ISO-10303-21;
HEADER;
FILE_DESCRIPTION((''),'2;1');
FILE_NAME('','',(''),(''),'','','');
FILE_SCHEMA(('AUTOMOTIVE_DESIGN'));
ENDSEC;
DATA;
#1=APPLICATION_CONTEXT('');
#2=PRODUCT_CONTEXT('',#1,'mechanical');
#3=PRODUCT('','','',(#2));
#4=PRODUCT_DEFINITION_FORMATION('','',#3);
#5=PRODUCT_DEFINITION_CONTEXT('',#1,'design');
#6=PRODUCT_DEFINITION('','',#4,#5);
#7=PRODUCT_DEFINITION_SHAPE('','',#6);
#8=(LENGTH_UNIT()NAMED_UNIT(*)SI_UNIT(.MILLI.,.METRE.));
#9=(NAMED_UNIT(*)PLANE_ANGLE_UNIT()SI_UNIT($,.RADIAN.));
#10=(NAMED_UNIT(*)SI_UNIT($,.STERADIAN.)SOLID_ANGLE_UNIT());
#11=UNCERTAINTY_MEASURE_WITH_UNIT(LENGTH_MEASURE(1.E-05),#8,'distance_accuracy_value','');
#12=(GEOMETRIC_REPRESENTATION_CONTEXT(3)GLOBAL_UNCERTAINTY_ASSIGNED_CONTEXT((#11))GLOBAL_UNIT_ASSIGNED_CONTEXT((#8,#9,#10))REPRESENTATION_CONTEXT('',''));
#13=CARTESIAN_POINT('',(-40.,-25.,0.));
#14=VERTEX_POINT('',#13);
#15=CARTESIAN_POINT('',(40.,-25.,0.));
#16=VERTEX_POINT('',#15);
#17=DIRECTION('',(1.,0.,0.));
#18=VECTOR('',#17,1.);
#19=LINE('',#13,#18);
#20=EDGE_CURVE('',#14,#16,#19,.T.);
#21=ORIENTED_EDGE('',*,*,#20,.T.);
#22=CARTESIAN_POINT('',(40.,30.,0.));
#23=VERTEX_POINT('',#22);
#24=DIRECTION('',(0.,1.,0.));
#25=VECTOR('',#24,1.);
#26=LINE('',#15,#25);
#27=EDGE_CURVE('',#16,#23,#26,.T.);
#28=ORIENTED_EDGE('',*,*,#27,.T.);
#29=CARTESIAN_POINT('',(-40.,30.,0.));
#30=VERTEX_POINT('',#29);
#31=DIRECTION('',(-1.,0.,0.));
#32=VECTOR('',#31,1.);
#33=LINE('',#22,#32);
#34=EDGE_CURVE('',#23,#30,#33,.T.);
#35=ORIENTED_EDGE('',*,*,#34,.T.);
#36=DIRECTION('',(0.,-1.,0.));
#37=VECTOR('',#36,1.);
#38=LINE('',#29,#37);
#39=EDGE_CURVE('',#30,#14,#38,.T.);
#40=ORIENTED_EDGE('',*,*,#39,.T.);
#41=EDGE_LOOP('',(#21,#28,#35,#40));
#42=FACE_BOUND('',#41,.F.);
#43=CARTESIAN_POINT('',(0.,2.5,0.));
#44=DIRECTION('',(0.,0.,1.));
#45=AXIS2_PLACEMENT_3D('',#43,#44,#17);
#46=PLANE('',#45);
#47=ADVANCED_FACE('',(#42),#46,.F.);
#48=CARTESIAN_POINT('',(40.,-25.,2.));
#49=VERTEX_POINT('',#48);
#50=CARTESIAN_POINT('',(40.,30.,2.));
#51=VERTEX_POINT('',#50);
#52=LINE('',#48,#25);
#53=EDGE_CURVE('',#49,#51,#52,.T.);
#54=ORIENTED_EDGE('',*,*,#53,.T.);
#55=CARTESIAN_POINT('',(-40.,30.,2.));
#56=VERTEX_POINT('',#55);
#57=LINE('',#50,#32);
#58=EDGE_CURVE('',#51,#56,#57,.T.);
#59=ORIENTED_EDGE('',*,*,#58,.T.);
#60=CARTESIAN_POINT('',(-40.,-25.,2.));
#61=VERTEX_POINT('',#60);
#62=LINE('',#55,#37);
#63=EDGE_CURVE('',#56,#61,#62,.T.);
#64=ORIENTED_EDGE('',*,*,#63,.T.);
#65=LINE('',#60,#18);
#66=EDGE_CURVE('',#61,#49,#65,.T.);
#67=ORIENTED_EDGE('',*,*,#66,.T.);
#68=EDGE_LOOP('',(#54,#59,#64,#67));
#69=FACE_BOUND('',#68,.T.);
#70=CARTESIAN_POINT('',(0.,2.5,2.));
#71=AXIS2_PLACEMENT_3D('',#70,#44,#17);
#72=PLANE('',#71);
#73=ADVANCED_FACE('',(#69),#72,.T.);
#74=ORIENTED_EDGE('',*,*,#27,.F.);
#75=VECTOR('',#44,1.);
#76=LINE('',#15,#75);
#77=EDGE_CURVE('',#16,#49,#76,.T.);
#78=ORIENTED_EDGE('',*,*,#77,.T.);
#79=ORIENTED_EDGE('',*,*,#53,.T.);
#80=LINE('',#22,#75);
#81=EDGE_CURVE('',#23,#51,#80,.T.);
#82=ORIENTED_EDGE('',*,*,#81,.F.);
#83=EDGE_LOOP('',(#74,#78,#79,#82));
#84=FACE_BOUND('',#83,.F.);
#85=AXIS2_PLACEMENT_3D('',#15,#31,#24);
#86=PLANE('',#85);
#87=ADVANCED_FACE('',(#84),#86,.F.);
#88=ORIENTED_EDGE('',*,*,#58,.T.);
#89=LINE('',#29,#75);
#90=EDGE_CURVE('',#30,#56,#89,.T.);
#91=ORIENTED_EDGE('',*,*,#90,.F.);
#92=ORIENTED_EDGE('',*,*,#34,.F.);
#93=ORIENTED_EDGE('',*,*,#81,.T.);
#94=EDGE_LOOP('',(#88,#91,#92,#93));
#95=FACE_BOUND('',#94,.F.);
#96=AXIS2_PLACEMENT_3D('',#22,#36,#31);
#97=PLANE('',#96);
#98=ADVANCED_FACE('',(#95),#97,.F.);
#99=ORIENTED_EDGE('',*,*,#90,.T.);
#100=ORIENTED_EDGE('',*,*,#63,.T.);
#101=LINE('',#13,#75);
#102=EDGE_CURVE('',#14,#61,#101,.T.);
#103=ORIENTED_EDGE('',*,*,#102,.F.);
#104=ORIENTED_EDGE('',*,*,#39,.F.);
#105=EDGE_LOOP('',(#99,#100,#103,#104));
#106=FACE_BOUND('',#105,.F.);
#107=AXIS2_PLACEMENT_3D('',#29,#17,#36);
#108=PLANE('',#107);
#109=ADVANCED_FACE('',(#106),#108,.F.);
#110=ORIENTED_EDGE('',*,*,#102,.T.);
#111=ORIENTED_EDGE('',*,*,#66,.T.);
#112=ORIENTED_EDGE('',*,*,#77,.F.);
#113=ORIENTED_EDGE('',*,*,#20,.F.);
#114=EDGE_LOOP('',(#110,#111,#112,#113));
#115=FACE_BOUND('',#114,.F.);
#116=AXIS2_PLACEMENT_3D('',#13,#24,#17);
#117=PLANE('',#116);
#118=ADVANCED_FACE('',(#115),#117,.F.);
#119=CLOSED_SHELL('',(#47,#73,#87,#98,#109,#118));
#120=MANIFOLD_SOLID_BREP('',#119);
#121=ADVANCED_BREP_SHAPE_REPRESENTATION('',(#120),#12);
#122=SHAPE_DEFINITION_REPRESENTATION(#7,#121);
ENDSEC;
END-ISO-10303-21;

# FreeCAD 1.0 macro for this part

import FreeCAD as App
import Part
import Sketcher

doc = App.newDocument("Part")
body = doc.addObject("PartDesign::Body", "Body")

sketch1 = body.newObject("Sketcher::SketchObject", "Sketch")
sketch1.AttachmentSupport = (doc.getObject("XY_Plane"), [""])
sketch1.MapMode = "FlatFace"
sketch1.addGeometry(Part.LineSegment(App.Vector(-40, -25, 0), App.Vector(40, -25, 0)), False)
sketch1.addGeometry(Part.LineSegment(App.Vector(40, -25, 0), App.Vector(40, 30, 0)), False)
sketch1.addGeometry(Part.LineSegment(App.Vector(40, 30, 0), App.Vector(-40, 30, 0)), False)
sketch1.addGeometry(Part.LineSegment(App.Vector(-40, 30, 0), App.Vector(-40, -25, 0)), False)
sketch1.addConstraint(Sketcher.Constraint("Coincident", 0, 2, 1, 1))
sketch1.addConstraint(Sketcher.Constraint("Coincident", 1, 2, 2, 1))
sketch1.addConstraint(Sketcher.Constraint("Coincident", 2, 2, 3, 1))
sketch1.addConstraint(Sketcher.Constraint("Coincident", 3, 2, 0, 1))
sketch1.addConstraint(Sketcher.Constraint("Horizontal", 0))
sketch1.addConstraint(Sketcher.Constraint("Vertical", 1))
sketch1.addConstraint(Sketcher.Constraint("Horizontal", 2))
sketch1.addConstraint(Sketcher.Constraint("Vertical", 3))
sketch1.addConstraint(Sketcher.Constraint("DistanceX", 0, 1, 0, 2, 80.0))
sketch1.addConstraint(Sketcher.Constraint("DistanceY", 1, 1, 1, 2, 55.0))
sketch1.addConstraint(Sketcher.Constraint("DistanceX", -1, 1, 0, 2, 40.0))
sketch1.addConstraint(Sketcher.Constraint("DistanceY", 0, 2, -1, 1, 25.0))
pad1 = body.newObject("PartDesign::Pad", "Pad")
pad1.Profile = sketch1
pad1.Length = 2

doc.recompute()
